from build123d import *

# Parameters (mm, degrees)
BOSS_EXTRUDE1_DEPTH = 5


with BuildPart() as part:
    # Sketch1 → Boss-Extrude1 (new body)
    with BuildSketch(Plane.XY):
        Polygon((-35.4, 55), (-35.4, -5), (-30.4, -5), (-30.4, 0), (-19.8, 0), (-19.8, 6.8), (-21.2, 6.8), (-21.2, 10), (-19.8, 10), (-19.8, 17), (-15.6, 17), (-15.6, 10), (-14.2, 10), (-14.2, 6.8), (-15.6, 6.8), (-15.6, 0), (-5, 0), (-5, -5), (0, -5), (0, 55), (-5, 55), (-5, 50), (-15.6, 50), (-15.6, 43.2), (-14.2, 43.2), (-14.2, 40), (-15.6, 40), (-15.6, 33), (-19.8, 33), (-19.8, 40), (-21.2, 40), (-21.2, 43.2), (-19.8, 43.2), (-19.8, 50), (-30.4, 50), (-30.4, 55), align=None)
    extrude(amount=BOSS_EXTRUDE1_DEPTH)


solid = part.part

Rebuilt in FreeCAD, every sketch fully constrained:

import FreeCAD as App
import Part
import Sketcher
Q = App.Units.Quantity


def add_polygon(sketch, points):
    """Adds a closed chain of lines whose ends are joined by coincident constraints."""
    first, n = sketch.GeometryCount, len(points)
    for a, b in zip(points, points[1:] + points[:1]):
        sketch.addGeometry(Part.LineSegment(App.Vector(*a, 0), App.Vector(*b, 0)), False)
    for i in range(n):
        sketch.addConstraint(Sketcher.Constraint("Coincident", first + i, 2, first + (i + 1) % n, 1))

doc = App.newDocument("Part")
body = doc.addObject("PartDesign::Body", "Body")

# Sketch on XY plane
sketch1 = body.newObject("Sketcher::SketchObject", "Sketch")
sketch1.AttachmentSupport = (doc.getObject("XY_Plane"), [""])
sketch1.MapMode = "FlatFace"
add_polygon(sketch1, [(-35.4, 55), (-35.4, -5), (-30.4, -5), (-30.4, 0), (-19.8, 0), (-19.8, 6.8), (-21.2, 6.8), (-21.2, 10), (-19.8, 10), (-19.8, 17), (-15.6, 17), (-15.6, 10), (-14.2, 10), (-14.2, 6.8), (-15.6, 6.8), (-15.6, 0), (-5, 0), (-5, -5), (0, -5), (0, 55), (-5, 55), (-5, 50), (-15.6, 50), (-15.6, 43.2), (-14.2, 43.2), (-14.2, 40), (-15.6, 40), (-15.6, 33), (-19.8, 33), (-19.8, 40), (-21.2, 40), (-21.2, 43.2), (-19.8, 43.2), (-19.8, 50), (-30.4, 50), (-30.4, 55)])  # lines 0-35
sketch1.addConstraint(Sketcher.Constraint("Vertical", 0))
sketch1.addConstraint(Sketcher.Constraint("Horizontal", 1))
sketch1.addConstraint(Sketcher.Constraint("Vertical", 2))
sketch1.addConstraint(Sketcher.Constraint("Horizontal", 3))
sketch1.addConstraint(Sketcher.Constraint("Vertical", 4))
sketch1.addConstraint(Sketcher.Constraint("Horizontal", 5))
sketch1.addConstraint(Sketcher.Constraint("Vertical", 6))
sketch1.addConstraint(Sketcher.Constraint("Horizontal", 7))
sketch1.addConstraint(Sketcher.Constraint("Vertical", 8))
sketch1.addConstraint(Sketcher.Constraint("Horizontal", 9))
sketch1.addConstraint(Sketcher.Constraint("Vertical", 10))
sketch1.addConstraint(Sketcher.Constraint("Horizontal", 11))
sketch1.addConstraint(Sketcher.Constraint("Vertical", 12))
sketch1.addConstraint(Sketcher.Constraint("Horizontal", 13))
sketch1.addConstraint(Sketcher.Constraint("Vertical", 14))
sketch1.addConstraint(Sketcher.Constraint("Horizontal", 15))
sketch1.addConstraint(Sketcher.Constraint("Vertical", 16))
sketch1.addConstraint(Sketcher.Constraint("Horizontal", 17))
sketch1.addConstraint(Sketcher.Constraint("Vertical", 18))
sketch1.addConstraint(Sketcher.Constraint("Horizontal", 19))
sketch1.addConstraint(Sketcher.Constraint("Vertical", 20))
sketch1.addConstraint(Sketcher.Constraint("Horizontal", 21))
sketch1.addConstraint(Sketcher.Constraint("Vertical", 22))
sketch1.addConstraint(Sketcher.Constraint("Horizontal", 23))
sketch1.addConstraint(Sketcher.Constraint("Vertical", 24))
sketch1.addConstraint(Sketcher.Constraint("Horizontal", 25))
sketch1.addConstraint(Sketcher.Constraint("Vertical", 26))
sketch1.addConstraint(Sketcher.Constraint("Horizontal", 27))
sketch1.addConstraint(Sketcher.Constraint("Vertical", 28))
sketch1.addConstraint(Sketcher.Constraint("Horizontal", 29))
sketch1.addConstraint(Sketcher.Constraint("Vertical", 30))
sketch1.addConstraint(Sketcher.Constraint("Horizontal", 31))
sketch1.addConstraint(Sketcher.Constraint("Vertical", 32))
sketch1.addConstraint(Sketcher.Constraint("Horizontal", 33))
sketch1.addConstraint(Sketcher.Constraint("Vertical", 34))
sketch1.addConstraint(Sketcher.Constraint("Horizontal", 35))
sketch1.addConstraint(Sketcher.Constraint("PointOnObject", 2, 2, -1))
sketch1.addConstraint(Sketcher.Constraint("PointOnObject", 14, 2, -1))
sketch1.addConstraint(Sketcher.Constraint("PointOnObject", 17, 2, -2))
sketch1.addConstraint(Sketcher.Constraint("Horizontal", 7, 2, 10, 2))
sketch1.addConstraint(Sketcher.Constraint("Horizontal", 5, 2, 12, 2))
sketch1.addConstraint(Sketcher.Constraint("Horizontal", 1, 2, 16, 2))
sketch1.addConstraint(Sketcher.Constraint("Horizontal", 25, 2, 28, 2))
sketch1.addConstraint(Sketcher.Constraint("Horizontal", 23, 2, 30, 2))
sketch1.addConstraint(Sketcher.Constraint("Horizontal", 21, 2, 32, 2))
sketch1.addConstraint(Sketcher.Constraint("Horizontal", 19, 2, 34, 2))
sketch1.addConstraint(Sketcher.Constraint("Vertical", 4, 2, 7, 2))
sketch1.addConstraint(Sketcher.Constraint("Vertical", 10, 2, 13, 2))
sketch1.addConstraint(Sketcher.Constraint("Vertical", 16, 2, 19, 2))
sketch1.addConstraint(Sketcher.Constraint("Vertical", 14, 2, 21, 2))
sketch1.addConstraint(Sketcher.Constraint("Vertical", 12, 2, 23, 2))
sketch1.addConstraint(Sketcher.Constraint("Vertical", 22, 2, 25, 2))
sketch1.addConstraint(Sketcher.Constraint("Vertical", 8, 2, 27, 2))
sketch1.addConstraint(Sketcher.Constraint("Vertical", 6, 2, 29, 2))
sketch1.addConstraint(Sketcher.Constraint("Vertical", 28, 2, 31, 2))
sketch1.addConstraint(Sketcher.Constraint("Vertical", 2, 2, 33, 2))
sketch1.addConstraint(Sketcher.Constraint("Equal", 7, 11))
sketch1.addConstraint(Sketcher.Constraint("Equal", 3, 15))
sketch1.addConstraint(Sketcher.Constraint("Equal", 1, 17))
sketch1.addConstraint(Sketcher.Constraint("Equal", 35, 2))
sketch1.addConstraint(Sketcher.Constraint("Equal", 16, 20))
sketch1.addConstraint(Sketcher.Constraint("Equal", 14, 22))
sketch1.addConstraint(Sketcher.Constraint("Equal", 12, 24))
sketch1.addConstraint(Sketcher.Constraint("Equal", 10, 26))
sketch1.addConstraint(Sketcher.Constraint("DistanceX", 1, 1, 1, 2, Q("5 mm")))
sketch1.addConstraint(Sketcher.Constraint("DistanceY", 0, 2, 0, 1, Q("60 mm")))
sketch1.addConstraint(Sketcher.Constraint("DistanceY", 8, 1, 8, 2, Q("7 mm")))
sketch1.addConstraint(Sketcher.Constraint("DistanceX", 3, 1, 3, 2, Q("10.6 mm")))
sketch1.addConstraint(Sketcher.Constraint("DistanceX", 5, 2, 5, 1, Q("1.4 mm")))
sketch1.addConstraint(Sketcher.Constraint("DistanceX", 9, 1, 9, 2, Q("4.2 mm")))
sketch1.addConstraint(Sketcher.Constraint("DistanceY", 4, 1, 4, 2, Q("6.8 mm")))
sketch1.addConstraint(Sketcher.Constraint("DistanceY", 6, 1, 6, 2, Q("3.2 mm")))
pad1 = body.newObject("PartDesign::Pad", "Pad")
pad1.Profile = sketch1
pad1.Length = 5

doc.recompute()
